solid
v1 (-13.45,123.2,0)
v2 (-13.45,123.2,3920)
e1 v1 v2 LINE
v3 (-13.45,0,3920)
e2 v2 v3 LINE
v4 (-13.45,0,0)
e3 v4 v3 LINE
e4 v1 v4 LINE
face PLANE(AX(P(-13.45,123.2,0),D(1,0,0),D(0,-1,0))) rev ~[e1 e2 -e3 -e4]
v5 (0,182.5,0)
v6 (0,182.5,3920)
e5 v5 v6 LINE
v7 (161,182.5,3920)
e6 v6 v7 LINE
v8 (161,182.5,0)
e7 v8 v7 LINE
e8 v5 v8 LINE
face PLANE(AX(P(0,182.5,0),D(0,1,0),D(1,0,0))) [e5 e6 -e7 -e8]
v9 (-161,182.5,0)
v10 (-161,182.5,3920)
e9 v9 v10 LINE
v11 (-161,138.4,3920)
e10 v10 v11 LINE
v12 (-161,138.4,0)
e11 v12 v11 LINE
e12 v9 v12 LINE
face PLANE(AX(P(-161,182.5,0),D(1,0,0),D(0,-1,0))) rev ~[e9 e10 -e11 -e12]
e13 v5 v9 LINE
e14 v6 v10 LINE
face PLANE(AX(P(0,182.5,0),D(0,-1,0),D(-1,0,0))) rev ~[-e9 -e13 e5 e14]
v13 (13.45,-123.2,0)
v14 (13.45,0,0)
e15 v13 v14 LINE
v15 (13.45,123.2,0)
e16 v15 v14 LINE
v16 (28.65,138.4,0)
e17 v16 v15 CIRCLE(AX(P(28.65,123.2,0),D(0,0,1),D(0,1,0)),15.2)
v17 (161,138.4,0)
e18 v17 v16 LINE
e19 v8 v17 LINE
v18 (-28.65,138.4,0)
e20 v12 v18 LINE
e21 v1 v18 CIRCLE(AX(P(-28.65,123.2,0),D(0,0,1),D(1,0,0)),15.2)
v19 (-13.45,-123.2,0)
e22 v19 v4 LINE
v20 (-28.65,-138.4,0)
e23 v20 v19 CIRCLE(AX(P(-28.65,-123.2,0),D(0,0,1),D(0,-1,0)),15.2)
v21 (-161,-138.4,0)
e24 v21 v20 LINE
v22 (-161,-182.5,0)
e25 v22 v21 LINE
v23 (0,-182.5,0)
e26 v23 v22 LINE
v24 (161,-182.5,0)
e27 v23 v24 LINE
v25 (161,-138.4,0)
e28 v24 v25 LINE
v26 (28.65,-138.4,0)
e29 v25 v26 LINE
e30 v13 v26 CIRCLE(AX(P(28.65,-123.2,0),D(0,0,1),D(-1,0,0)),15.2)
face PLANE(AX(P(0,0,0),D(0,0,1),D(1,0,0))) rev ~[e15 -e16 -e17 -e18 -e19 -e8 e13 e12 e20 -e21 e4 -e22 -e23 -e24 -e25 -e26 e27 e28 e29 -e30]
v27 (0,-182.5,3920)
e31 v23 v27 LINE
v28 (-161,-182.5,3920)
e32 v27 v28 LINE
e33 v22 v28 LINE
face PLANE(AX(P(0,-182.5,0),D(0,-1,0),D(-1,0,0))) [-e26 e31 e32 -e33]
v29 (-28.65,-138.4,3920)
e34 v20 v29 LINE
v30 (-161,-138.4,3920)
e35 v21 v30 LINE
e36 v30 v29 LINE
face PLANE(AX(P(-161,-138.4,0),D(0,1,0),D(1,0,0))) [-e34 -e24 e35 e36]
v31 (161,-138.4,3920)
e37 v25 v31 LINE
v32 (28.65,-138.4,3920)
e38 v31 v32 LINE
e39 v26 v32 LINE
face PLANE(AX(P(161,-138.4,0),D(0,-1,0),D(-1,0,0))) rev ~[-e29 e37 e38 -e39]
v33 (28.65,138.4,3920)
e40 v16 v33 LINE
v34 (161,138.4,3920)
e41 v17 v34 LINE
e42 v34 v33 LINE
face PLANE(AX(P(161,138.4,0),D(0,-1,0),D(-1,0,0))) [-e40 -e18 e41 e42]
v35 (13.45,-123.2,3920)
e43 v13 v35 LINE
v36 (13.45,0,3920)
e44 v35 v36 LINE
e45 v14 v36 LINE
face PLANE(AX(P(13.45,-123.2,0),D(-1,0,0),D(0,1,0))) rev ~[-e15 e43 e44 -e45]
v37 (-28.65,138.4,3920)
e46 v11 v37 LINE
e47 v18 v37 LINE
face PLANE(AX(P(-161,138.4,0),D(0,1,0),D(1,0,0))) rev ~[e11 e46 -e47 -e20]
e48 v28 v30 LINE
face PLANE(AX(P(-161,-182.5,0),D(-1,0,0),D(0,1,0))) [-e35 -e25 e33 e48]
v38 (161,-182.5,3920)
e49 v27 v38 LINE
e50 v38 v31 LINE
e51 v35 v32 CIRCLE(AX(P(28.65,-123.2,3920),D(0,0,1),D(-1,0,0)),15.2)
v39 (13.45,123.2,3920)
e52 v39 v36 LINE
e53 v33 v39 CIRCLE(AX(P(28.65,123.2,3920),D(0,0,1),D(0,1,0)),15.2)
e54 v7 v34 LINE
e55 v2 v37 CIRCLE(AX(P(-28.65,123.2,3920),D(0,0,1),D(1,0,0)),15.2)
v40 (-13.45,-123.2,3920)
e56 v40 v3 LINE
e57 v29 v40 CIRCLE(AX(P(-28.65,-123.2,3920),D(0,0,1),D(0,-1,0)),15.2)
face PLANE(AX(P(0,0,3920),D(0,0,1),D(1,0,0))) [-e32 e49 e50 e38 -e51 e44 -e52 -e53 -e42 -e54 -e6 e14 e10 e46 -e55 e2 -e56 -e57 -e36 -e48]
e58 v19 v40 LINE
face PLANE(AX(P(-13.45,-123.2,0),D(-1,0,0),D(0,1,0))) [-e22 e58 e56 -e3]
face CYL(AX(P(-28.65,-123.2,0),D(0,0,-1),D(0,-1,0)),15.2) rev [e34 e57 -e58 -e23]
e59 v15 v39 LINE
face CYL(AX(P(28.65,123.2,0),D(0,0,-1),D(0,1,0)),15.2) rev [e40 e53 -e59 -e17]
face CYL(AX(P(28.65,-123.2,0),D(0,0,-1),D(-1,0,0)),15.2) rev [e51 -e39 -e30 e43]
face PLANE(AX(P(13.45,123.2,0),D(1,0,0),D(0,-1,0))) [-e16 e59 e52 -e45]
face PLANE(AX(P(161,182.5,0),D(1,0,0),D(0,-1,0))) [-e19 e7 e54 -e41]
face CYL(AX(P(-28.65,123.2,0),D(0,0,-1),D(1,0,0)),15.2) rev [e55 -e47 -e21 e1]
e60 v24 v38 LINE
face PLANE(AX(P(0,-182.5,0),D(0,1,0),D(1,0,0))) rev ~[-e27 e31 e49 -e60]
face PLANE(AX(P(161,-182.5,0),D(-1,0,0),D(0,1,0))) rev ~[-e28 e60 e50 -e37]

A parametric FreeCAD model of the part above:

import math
import FreeCAD as App
import Part
import Sketcher

V = App.Vector
Q = App.Units.Quantity

doc = App.newDocument("Part")
params = doc.addObject("Spreadsheet::Sheet", "Params")
for row, (alias, value) in enumerate([
    ("sketch1_radius", "15.2 mm"),
    ("sketch1_height", "44.1 mm"),
    ("pad1_length", "3920 mm"),
], start=1):
    params.set(f"A{row}", alias)
    params.set(f"B{row}", "=" + value)
    params.setAlias(f"B{row}", alias)

body = doc.addObject("PartDesign::Body", "Body")

# Sketch on XY plane
sketch1 = body.newObject("Sketcher::SketchObject", "Sketch")
sketch1.AttachmentSupport = (doc.getObject("XY_Plane"), [""])
sketch1.MapMode = "FlatFace"
sketch1.addGeometry([
    Part.LineSegment(V(-161, -138, 0), V(-161, -182, 0)),  # 0
    Part.LineSegment(V(-161, -182, 0), V(161, -182, 0)),  # 1
    Part.LineSegment(V(161, -182, 0), V(161, -138, 0)),  # 2
    Part.LineSegment(V(161, -138, 0), V(29, -138, 0)),  # 3
    Part.ArcOfCircle(Part.Circle(V(29, -123, 0), V(0, 0, 1), 15), math.radians(180), math.radians(270)),  # 4
    Part.LineSegment(V(13, -123, 0), V(13, 123, 0)),  # 5
    Part.ArcOfCircle(Part.Circle(V(29, 123, 0), V(0, 0, 1), 15), math.radians(90), math.radians(180)),  # 6
    Part.LineSegment(V(29, 138, 0), V(161, 138, 0)),  # 7
    Part.LineSegment(V(161, 138, 0), V(161, 182, 0)),  # 8
    Part.LineSegment(V(161, 182, 0), V(-161, 182, 0)),  # 9
    Part.LineSegment(V(-161, 182, 0), V(-161, 138, 0)),  # 10
    Part.LineSegment(V(-161, 138, 0), V(-29, 138, 0)),  # 11
    Part.ArcOfCircle(Part.Circle(V(-29, 123, 0), V(0, 0, 1), 15), math.radians(0), math.radians(90)),  # 12
    Part.LineSegment(V(-13, 123, 0), V(-13, -123, 0)),  # 13
    Part.ArcOfCircle(Part.Circle(V(-29, -123, 0), V(0, 0, 1), 15), math.radians(-90), math.radians(0)),  # 14
    Part.LineSegment(V(-29, -138, 0), V(-161, -138, 0)),  # 15
], False)
sketch1.addConstraint([
    Sketcher.Constraint("Coincident", 0, 2, 1, 1),
    Sketcher.Constraint("Coincident", 1, 2, 2, 1),
    Sketcher.Constraint("Coincident", 2, 2, 3, 1),
    Sketcher.Constraint("Tangent", 3, 2, 4, 2),
    Sketcher.Constraint("Tangent", 4, 1, 5, 1),
    Sketcher.Constraint("Tangent", 5, 2, 6, 2),
    Sketcher.Constraint("Tangent", 6, 1, 7, 1),
    Sketcher.Constraint("Coincident", 7, 2, 8, 1),
    Sketcher.Constraint("Coincident", 8, 2, 9, 1),
    Sketcher.Constraint("Coincident", 9, 2, 10, 1),
    Sketcher.Constraint("Coincident", 10, 2, 11, 1),
    Sketcher.Constraint("Tangent", 11, 2, 12, 2),
    Sketcher.Constraint("Tangent", 12, 1, 13, 1),
    Sketcher.Constraint("Tangent", 13, 2, 14, 2),
    Sketcher.Constraint("Tangent", 14, 1, 15, 1),
    Sketcher.Constraint("Coincident", 15, 2, 0, 1),
    Sketcher.Constraint("Vertical", 0),
    Sketcher.Constraint("Horizontal", 1),
    Sketcher.Constraint("Vertical", 2),
    Sketcher.Constraint("Horizontal", 3),
    Sketcher.Constraint("Vertical", 5),
    Sketcher.Constraint("Horizontal", 7),
    Sketcher.Constraint("Vertical", 8),
    Sketcher.Constraint("Horizontal", 9),
    Sketcher.Constraint("Vertical", 10),
    Sketcher.Constraint("Horizontal", 11),
    Sketcher.Constraint("Vertical", 13),
    Sketcher.Constraint("Horizontal", 15),
    Sketcher.Constraint("Equal", 4, 6),
    Sketcher.Constraint("Equal", 6, 12),
    Sketcher.Constraint("Equal", 12, 14),
    Sketcher.Constraint("Symmetric", 4, 3, 12, 3, -1, 1),
    Sketcher.Constraint("Symmetric", 0, 2, 8, 2, -1, 1),
    Sketcher.Constraint("Symmetric", 7, 2, 10, 2, -2),
    Sketcher.Constraint("Symmetric", 2, 2, 15, 2, -2),
    Sketcher.Constraint("Radius", 4, Q("15.2 mm")),
    Sketcher.Constraint("DistanceY", 0, 2, 0, 1, Q("44.1 mm")),
    Sketcher.Constraint("DistanceX", 0, 2, -1, 1, Q("161 mm")),
    Sketcher.Constraint("DistanceY", 0, 2, -1, 1, Q("182.5 mm")),
    Sketcher.Constraint("DistanceX", -1, 1, 4, 1, Q("13.45 mm")),
])
sketch1.setExpression("Constraints[35]", "Params.sketch1_radius")
sketch1.setExpression("Constraints[36]", "Params.sketch1_height")
pad1 = body.newObject("PartDesign::Pad", "Pad")
pad1.Profile = sketch1
pad1.setExpression("Length", "Params.pad1_length")

doc.recompute()
